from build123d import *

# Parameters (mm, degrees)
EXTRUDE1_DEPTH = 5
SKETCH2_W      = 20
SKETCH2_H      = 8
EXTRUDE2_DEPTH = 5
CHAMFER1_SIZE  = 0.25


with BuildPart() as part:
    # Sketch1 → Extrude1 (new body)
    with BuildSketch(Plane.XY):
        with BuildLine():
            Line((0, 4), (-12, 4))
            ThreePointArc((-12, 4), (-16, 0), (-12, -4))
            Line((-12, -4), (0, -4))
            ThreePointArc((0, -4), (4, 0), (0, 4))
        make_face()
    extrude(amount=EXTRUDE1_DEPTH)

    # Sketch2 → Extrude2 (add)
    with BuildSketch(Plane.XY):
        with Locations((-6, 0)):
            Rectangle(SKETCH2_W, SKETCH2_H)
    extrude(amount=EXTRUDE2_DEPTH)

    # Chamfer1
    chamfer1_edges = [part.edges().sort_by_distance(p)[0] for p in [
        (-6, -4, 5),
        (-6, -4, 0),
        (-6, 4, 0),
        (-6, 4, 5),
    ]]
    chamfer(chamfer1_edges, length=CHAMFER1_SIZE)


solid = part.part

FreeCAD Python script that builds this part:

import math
import FreeCAD as App
import Part
import Sketcher

V = App.Vector


def edges_at(feature, points):
    """Names of the edges that pass closest to the given points."""
    edges = feature.Shape.Edges
    near = lambda p: min(range(len(edges)), key=lambda i: edges[i].distToShape(Part.Vertex(*p))[0])
    return sorted({f"Edge{near(p) + 1}" for p in points})

doc = App.newDocument("Part")
params = doc.addObject("Spreadsheet::Sheet", "Params")
for row, (alias, value) in enumerate([
    ("sketch1_radius", "4 mm"),
    ("sketch1_width", "12 mm"),
    ("pad1_length", "5 mm"),
    ("sketch2_width", "20 mm"),
    ("sketch2_height", "8 mm"),
    ("pad2_length", "5 mm"),
    ("chamfer_size", "0.25 mm"),
], start=1):
    params.set(f"A{row}", alias)
    params.set(f"B{row}", "=" + value)
    params.setAlias(f"B{row}", alias)

body = doc.addObject("PartDesign::Body", "Body")

# Sketch on XY plane
sketch1 = body.newObject("Sketcher::SketchObject", "Sketch")
sketch1.AttachmentSupport = (doc.getObject("XY_Plane"), [""])
sketch1.MapMode = "FlatFace"
sketch1.addGeometry([
    Part.LineSegment(V(0, 4, 0), V(-12, 4, 0)),
    Part.ArcOfCircle(Part.Circle(V(-12, 0, 0), V(0, 0, 1), 4), math.radians(90), math.radians(270)),
    Part.LineSegment(V(-12, -4, 0), V(0, -4, 0)),
    Part.ArcOfCircle(Part.Circle(V(0, 0, 0), V(0, 0, 1), 4), math.radians(-90), math.radians(90)),
], False)
sketch1.addConstraint([
    Sketcher.Constraint("Tangent", 0, 2, 1, 1),
    Sketcher.Constraint("Tangent", 1, 2, 2, 1),
    Sketcher.Constraint("Tangent", 2, 2, 3, 1),
    Sketcher.Constraint("Tangent", 3, 2, 0, 1),
    Sketcher.Constraint("Horizontal", 0),
    Sketcher.Constraint("Horizontal", 2),
    Sketcher.Constraint("Coincident", 3, 3, -1, 1),
    Sketcher.Constraint("Radius", 1, 4.0),
    Sketcher.Constraint("DistanceX", 0, 2, 0, 1, 12.0),
])
sketch1.setExpression("Constraints[7]", "Params.sketch1_radius")
sketch1.setExpression("Constraints[8]", "Params.sketch1_width")
pad1 = body.newObject("PartDesign::Pad", "Pad")
pad1.Profile = sketch1
pad1.setExpression("Length", "Params.pad1_length")

# Sketch on XY plane
sketch2 = body.newObject("Sketcher::SketchObject", "Sketch001")
sketch2.AttachmentSupport = (doc.getObject("XY_Plane"), [""])
sketch2.MapMode = "FlatFace"
sketch2.addGeometry([
    Part.LineSegment(V(-16, 4, 0), V(-16, -4, 0)),
    Part.LineSegment(V(-16, -4, 0), V(4, -4, 0)),
    Part.LineSegment(V(4, -4, 0), V(4, 4, 0)),
    Part.LineSegment(V(4, 4, 0), V(-16, 4, 0)),
], False)
sketch2.addConstraint([
    Sketcher.Constraint("Coincident", 0, 2, 1, 1),
    Sketcher.Constraint("Coincident", 1, 2, 2, 1),
    Sketcher.Constraint("Coincident", 2, 2, 3, 1),
    Sketcher.Constraint("Coincident", 3, 2, 0, 1),
    Sketcher.Constraint("Vertical", 0),
    Sketcher.Constraint("Horizontal", 1),
    Sketcher.Constraint("Vertical", 2),
    Sketcher.Constraint("Horizontal", 3),
    Sketcher.Constraint("DistanceX", 1, 1, 1, 2, 20.0),
    Sketcher.Constraint("DistanceY", 0, 2, 0, 1, 8.0),
    Sketcher.Constraint("DistanceX", 0, 2, -1, 1, 16.0),
    Sketcher.Constraint("DistanceY", 0, 2, -1, 1, 4.0),
])
sketch2.setExpression("Constraints[8]", "Params.sketch2_width")
sketch2.setExpression("Constraints[9]", "Params.sketch2_height")
pad2 = body.newObject("PartDesign::Pad", "Pad001")
pad2.Profile = sketch2
pad2.setExpression("Length", "Params.pad2_length")
doc.recompute()

chamfer = body.newObject("PartDesign::Chamfer", "Chamfer")
chamfer.Base = (pad2, edges_at(pad2, [
    (-6, -4, 5),
    (-6, -4, 0),
    (-6, 4, 0),
    (-6, 4, 5),
]))
chamfer.setExpression("Size", "Params.chamfer_size")

doc.recompute()
